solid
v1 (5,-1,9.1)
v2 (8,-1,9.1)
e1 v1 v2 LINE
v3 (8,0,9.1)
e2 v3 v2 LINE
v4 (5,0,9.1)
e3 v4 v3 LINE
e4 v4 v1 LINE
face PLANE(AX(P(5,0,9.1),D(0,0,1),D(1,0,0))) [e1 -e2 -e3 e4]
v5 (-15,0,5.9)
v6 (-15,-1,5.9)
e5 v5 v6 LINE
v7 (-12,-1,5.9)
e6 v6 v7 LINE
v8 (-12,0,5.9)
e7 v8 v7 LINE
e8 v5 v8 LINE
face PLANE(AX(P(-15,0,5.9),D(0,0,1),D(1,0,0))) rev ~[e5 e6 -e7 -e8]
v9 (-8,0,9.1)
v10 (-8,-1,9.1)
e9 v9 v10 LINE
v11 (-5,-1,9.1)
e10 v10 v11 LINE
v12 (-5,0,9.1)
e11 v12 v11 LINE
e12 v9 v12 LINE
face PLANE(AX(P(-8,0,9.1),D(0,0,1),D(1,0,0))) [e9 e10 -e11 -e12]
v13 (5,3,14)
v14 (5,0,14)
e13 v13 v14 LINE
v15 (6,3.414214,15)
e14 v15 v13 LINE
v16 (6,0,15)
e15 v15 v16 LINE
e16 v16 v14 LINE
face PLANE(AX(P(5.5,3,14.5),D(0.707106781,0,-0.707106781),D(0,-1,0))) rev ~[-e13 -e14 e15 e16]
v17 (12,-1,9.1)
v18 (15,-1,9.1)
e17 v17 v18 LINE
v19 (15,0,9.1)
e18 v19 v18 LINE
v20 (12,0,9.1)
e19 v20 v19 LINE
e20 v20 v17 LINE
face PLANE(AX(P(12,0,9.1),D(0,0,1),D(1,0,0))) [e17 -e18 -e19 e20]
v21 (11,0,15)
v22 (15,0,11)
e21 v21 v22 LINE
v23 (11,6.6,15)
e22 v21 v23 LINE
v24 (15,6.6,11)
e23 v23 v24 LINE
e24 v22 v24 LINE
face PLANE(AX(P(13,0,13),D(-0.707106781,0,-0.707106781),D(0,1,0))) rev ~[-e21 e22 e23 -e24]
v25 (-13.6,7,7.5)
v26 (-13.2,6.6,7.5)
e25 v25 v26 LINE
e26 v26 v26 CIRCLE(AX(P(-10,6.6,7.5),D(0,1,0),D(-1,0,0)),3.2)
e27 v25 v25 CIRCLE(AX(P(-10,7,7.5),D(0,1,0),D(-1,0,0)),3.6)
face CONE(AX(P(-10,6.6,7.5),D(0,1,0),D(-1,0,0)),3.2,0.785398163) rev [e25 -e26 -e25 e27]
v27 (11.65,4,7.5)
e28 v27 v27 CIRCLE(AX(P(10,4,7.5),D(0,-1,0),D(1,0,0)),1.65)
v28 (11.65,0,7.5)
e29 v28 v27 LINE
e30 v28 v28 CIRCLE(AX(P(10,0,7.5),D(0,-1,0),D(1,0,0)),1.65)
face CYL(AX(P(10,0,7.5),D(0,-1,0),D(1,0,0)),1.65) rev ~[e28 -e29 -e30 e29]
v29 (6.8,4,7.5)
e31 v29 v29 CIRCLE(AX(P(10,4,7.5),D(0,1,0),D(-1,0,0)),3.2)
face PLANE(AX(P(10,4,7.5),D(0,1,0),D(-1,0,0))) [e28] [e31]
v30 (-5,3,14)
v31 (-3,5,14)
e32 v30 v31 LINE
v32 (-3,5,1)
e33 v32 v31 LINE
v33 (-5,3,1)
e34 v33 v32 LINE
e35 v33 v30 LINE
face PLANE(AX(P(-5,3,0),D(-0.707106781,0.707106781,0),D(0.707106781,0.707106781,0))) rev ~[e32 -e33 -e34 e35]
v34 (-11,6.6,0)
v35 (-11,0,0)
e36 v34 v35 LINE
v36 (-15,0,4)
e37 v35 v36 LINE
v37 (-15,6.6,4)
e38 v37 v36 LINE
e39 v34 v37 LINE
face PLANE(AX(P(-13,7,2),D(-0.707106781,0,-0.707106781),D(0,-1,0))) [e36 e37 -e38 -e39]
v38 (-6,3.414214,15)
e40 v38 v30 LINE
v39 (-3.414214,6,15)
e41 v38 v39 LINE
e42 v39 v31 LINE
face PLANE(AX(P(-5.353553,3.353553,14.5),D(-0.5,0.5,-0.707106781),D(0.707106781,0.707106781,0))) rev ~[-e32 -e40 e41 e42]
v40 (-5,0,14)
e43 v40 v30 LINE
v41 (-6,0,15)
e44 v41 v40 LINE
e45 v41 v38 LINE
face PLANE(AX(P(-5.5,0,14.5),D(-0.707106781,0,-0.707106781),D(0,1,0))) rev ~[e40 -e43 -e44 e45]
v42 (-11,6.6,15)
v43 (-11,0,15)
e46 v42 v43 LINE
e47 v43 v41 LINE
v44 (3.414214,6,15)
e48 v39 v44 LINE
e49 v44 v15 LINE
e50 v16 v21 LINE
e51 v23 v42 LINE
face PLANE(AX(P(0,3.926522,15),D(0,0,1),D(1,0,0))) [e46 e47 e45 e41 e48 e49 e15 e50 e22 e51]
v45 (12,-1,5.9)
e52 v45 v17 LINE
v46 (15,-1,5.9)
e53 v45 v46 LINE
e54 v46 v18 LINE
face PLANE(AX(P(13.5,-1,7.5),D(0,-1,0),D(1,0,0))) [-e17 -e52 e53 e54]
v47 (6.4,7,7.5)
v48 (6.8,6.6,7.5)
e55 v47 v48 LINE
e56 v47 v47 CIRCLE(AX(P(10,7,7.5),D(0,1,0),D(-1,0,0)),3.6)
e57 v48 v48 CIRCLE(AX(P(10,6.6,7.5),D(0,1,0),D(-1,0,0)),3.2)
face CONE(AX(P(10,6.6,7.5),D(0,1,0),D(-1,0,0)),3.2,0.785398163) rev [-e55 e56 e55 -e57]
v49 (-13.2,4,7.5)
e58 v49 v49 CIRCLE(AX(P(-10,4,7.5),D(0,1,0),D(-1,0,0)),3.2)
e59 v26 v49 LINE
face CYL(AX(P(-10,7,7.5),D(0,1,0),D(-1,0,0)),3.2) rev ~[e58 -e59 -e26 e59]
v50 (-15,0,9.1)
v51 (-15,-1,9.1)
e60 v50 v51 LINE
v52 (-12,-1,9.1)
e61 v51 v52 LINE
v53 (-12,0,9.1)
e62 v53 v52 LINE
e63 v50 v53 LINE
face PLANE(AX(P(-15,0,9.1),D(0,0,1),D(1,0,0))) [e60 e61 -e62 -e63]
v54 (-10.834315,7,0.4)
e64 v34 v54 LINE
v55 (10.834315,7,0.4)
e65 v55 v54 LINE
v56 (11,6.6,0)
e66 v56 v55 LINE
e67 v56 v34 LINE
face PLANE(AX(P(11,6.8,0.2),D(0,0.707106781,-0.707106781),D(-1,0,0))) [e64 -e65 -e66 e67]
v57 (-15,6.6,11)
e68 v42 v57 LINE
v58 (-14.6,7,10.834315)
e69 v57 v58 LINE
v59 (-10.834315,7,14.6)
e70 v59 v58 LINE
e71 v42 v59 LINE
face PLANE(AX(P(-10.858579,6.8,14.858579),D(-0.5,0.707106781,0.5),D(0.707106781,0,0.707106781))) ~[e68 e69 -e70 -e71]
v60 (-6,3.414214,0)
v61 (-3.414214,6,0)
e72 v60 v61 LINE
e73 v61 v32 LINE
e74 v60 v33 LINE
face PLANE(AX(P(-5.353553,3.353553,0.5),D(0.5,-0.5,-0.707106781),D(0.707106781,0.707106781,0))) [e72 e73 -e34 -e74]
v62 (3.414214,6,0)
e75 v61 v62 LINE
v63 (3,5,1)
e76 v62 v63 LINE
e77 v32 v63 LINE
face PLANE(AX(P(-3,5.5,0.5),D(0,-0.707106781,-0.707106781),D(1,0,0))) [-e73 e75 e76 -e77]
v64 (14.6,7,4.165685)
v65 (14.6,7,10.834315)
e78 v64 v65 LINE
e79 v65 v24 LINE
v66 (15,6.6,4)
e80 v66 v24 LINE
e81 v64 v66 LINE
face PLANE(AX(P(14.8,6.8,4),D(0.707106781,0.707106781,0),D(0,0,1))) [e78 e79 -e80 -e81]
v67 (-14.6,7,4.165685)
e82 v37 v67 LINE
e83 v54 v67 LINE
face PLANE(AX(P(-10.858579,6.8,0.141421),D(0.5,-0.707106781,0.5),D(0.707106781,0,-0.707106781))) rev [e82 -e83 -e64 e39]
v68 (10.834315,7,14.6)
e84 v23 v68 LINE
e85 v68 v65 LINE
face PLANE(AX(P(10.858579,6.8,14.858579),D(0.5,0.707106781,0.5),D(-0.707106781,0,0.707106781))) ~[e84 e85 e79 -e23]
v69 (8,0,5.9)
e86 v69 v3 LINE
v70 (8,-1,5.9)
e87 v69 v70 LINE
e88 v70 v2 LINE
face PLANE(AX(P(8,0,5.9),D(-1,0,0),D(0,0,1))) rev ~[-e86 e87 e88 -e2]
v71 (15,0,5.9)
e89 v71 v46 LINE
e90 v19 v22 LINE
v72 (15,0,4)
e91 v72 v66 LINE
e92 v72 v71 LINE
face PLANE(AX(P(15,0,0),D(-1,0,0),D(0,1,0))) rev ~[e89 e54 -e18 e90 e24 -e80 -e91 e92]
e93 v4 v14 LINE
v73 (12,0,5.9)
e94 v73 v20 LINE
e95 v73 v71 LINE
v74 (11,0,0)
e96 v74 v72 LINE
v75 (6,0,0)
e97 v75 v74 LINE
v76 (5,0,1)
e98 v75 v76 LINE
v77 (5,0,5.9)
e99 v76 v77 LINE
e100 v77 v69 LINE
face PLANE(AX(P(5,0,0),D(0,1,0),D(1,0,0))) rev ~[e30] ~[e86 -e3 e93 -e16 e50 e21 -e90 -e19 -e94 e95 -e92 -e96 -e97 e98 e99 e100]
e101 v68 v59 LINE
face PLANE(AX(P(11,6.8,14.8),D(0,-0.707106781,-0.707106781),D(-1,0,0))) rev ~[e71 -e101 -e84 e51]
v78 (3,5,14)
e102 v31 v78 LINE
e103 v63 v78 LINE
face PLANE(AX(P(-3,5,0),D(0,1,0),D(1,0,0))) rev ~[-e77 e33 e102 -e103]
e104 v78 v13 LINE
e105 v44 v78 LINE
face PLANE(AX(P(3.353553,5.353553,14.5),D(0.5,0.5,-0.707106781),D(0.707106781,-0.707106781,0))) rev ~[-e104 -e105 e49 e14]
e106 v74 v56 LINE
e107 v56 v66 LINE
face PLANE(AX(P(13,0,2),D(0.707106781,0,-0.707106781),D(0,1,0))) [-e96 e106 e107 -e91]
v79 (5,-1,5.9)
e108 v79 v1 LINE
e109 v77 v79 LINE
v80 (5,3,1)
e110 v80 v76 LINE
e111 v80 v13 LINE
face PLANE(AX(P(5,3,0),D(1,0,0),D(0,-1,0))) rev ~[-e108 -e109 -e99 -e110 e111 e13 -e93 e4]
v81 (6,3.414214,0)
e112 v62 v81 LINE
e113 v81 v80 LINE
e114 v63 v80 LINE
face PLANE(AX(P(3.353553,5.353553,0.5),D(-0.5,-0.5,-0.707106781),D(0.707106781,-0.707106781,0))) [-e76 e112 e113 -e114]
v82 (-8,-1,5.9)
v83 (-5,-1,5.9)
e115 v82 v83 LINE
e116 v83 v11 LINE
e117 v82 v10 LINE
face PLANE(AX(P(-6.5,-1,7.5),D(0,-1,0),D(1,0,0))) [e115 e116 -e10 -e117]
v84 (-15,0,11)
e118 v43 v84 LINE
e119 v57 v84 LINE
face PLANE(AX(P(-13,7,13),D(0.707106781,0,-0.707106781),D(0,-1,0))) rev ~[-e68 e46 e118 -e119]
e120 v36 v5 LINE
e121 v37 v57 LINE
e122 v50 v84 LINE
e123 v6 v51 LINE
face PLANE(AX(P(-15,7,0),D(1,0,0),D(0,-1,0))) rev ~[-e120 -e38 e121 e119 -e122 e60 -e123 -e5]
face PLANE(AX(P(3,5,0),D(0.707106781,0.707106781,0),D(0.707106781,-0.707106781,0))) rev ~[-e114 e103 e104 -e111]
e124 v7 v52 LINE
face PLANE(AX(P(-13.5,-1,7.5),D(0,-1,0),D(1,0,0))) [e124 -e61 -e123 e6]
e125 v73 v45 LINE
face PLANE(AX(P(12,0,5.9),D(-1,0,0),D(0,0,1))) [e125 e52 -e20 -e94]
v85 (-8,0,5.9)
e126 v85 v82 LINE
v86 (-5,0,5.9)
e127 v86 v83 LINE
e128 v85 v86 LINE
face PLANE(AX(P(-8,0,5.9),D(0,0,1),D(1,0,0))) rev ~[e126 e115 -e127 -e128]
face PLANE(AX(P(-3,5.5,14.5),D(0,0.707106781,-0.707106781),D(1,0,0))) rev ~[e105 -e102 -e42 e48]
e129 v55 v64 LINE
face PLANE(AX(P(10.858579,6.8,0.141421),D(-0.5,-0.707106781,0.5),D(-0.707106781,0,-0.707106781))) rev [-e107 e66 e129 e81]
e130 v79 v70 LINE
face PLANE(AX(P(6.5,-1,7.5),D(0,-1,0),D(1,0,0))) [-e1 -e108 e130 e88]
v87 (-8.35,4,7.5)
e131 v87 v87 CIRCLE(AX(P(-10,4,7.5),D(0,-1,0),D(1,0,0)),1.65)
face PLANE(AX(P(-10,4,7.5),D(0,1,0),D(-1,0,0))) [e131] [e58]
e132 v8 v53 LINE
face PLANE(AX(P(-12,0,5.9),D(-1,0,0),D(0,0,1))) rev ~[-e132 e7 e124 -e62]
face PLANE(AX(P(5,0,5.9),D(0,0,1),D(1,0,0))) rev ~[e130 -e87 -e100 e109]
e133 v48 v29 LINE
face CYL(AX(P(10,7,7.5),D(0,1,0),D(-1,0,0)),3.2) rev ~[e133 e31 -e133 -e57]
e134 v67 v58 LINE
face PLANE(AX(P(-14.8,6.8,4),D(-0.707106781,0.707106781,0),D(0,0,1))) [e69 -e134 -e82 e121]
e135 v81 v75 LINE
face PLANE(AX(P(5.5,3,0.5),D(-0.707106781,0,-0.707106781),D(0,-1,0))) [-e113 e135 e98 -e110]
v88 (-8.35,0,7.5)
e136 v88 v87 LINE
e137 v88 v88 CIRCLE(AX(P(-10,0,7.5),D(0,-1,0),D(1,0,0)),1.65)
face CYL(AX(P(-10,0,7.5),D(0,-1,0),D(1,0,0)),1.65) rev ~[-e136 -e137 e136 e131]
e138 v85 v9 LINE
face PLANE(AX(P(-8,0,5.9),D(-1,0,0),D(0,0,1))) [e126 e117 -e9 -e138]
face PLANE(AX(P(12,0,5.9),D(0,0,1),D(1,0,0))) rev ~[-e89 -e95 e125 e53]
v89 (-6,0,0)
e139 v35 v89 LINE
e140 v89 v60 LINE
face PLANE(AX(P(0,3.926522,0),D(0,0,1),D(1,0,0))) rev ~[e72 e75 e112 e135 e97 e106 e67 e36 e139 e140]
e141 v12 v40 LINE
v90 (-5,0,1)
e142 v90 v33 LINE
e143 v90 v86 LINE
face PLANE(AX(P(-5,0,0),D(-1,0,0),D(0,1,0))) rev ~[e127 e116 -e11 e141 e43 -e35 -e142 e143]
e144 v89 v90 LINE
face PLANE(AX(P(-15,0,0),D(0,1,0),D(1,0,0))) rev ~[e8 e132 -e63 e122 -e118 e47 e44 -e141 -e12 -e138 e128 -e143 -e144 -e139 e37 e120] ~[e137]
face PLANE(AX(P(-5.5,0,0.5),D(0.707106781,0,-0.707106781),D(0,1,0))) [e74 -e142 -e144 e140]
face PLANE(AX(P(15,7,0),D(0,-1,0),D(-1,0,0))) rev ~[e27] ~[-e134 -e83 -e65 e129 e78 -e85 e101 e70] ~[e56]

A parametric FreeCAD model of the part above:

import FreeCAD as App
import Part
import Sketcher
from FreeCAD import Vector


def edges_at(feature, points):
    """Names of the edges that pass closest to the given points."""
    edges = feature.Shape.Edges
    near = lambda p: min(range(len(edges)), key=lambda i: edges[i].distToShape(Part.Vertex(*p))[0])
    return sorted({f"Edge{near(p) + 1}" for p in points})


def add_polygon(sketch, points):
    """Adds a closed chain of lines whose ends are joined by coincident constraints."""
    first, n = sketch.GeometryCount, len(points)
    for a, b in zip(points, points[1:] + points[:1]):
        sketch.addGeometry(Part.LineSegment(App.Vector(*a, 0), App.Vector(*b, 0)), False)
    for i in range(n):
        sketch.addConstraint(Sketcher.Constraint("Coincident", first + i, 2, first + (i + 1) % n, 1))

doc = App.newDocument("Part")
params = doc.addObject("Spreadsheet::Sheet", "Params")
for row, (alias, value) in enumerate([
    ("sketch1_width", "6 mm"),
    ("sketch1_width2", "10 mm"),
    ("sketch1_width3", "30 mm"),
    ("sketch1_height", "3 mm"),
    ("sketch1_height2", "7 mm"),
    ("pad1_length", "15 mm"),
    ("sketch2_diameter", "3.3 mm"),
    ("sketch3_diameter", "6.4 mm"),
    ("pocket2_length", "3 mm"),
    ("chamfer_size", "4 mm"),
    ("chamfer2_size", "0.4 mm"),
    ("chamfer3_size", "1 mm"),
    ("sketch4_width", "3 mm"),
    ("sketch4_height", "3.2 mm"),
    ("pad2_length", "1 mm"),
], start=1):
    params.set(f"A{row}", alias)
    params.set(f"B{row}", "=" + value)
    params.setAlias(f"B{row}", alias)

body = doc.addObject("PartDesign::Body", "Body")

sketch1 = doc.addObject("Sketcher::SketchObject", "Sketch")
body.addObject(sketch1)
sketch1.AttachmentSupport = (doc.XY_Plane, [""])
sketch1.MapMode = "FlatFace"
add_polygon(sketch1, [(-5, 0), (-5, 3), (-3, 5), (3, 5), (5, 3), (5, 0), (15, 0), (15, 7), (-15, 7), (-15, 0)])
sketch1.addConstraint([
    Sketcher.Constraint("Vertical", 0),
    Sketcher.Constraint("Horizontal", 2),
    Sketcher.Constraint("Vertical", 4),
    Sketcher.Constraint("Horizontal", 5),
    Sketcher.Constraint("Vertical", 6),
    Sketcher.Constraint("Horizontal", 7),
    Sketcher.Constraint("Vertical", 8),
    Sketcher.Constraint("Horizontal", 9),
    Sketcher.Constraint("Symmetric", 5, 2, 8, 2, -1, 1),
    Sketcher.Constraint("Symmetric", 0, 2, 3, 2, -2),
    Sketcher.Constraint("PointOnObject", 4, 2, -1),
    Sketcher.Constraint("Perpendicular", 1, 3),
    Sketcher.Constraint("Equal", 1, 3),
    Sketcher.Constraint("DistanceX", 2, 1, 2, 2, 6.0),
    Sketcher.Constraint("DistanceX", 5, 1, 5, 2, 10.0),
    Sketcher.Constraint("DistanceX", 7, 2, 7, 1, 30.0),
    Sketcher.Constraint("DistanceY", 0, 1, 0, 2, 3.0),
    Sketcher.Constraint("DistanceY", 6, 1, 6, 2, 7.0),
])
sketch1.setExpression("Constraints[23]", "Params.sketch1_width")
sketch1.setExpression("Constraints[24]", "Params.sketch1_width2")
sketch1.setExpression("Constraints[25]", "Params.sketch1_width3")
sketch1.setExpression("Constraints[26]", "Params.sketch1_height")
sketch1.setExpression("Constraints[27]", "Params.sketch1_height2")
pad1 = doc.addObject("PartDesign::Pad", "Pad")
body.addObject(pad1)
pad1.Profile = sketch1
pad1.setExpression("Length", "Params.pad1_length")

sketch2 = doc.addObject("Sketcher::SketchObject", "Sketch001")
body.addObject(sketch2)
sketch2.AttachmentSupport = (doc.XZ_Plane, [""])
sketch2.MapMode = "FlatFace"
sketch2.addGeometry([
    Part.Circle(Vector(-10, 7.5, 0), Vector(0, 0, 1), 1.6),
    Part.Circle(Vector(10, 7.5, 0), Vector(0, 0, 1), 1.6),
], False)
sketch2.addConstraint([
    Sketcher.Constraint("Equal", 0, 1),
    Sketcher.Constraint("Symmetric", 0, 3, 1, 3, -2),
    Sketcher.Constraint("Diameter", 0, 3.3),
    Sketcher.Constraint("DistanceX", 0, 3, -1, 1, 10.0),
    Sketcher.Constraint("DistanceY", -1, 1, 0, 3, 7.5),
])
sketch2.setExpression("Constraints[2]", "Params.sketch2_diameter")
pocket1 = doc.addObject("PartDesign::Pocket", "Pocket")
body.addObject(pocket1)
pocket1.Profile = sketch2
pocket1.Type = "ThroughAll"

sketch3 = doc.addObject("Sketcher::SketchObject", "Sketch002")
body.addObject(sketch3)
sketch3.AttachmentSupport = (doc.XZ_Plane, [""])
sketch3.MapMode = "FlatFace"
sketch3.AttachmentOffset = App.Placement(Vector(0, 0, -7), App.Rotation())
sketch3.addGeometry([
    Part.Circle(Vector(10, 7.5, 0), Vector(0, 0, 1), 3.2),
    Part.Circle(Vector(-10, 7.5, 0), Vector(0, 0, 1), 3.2),
], False)
sketch3.addConstraint([
    Sketcher.Constraint("Equal", 0, 1),
    Sketcher.Constraint("Symmetric", 0, 3, 1, 3, -2),
    Sketcher.Constraint("Diameter", 0, 6.4),
    Sketcher.Constraint("DistanceX", -1, 1, 0, 3, 10.0),
    Sketcher.Constraint("DistanceY", -1, 1, 0, 3, 7.5),
])
sketch3.setExpression("Constraints[2]", "Params.sketch3_diameter")
pocket2 = doc.addObject("PartDesign::Pocket", "Pocket001")
body.addObject(pocket2)
pocket2.Profile = sketch3
pocket2.setExpression("Length", "Params.pocket2_length")
pocket2.Reversed = True
doc.recompute()

chamfer = doc.addObject("PartDesign::Chamfer", "Chamfer")
body.addObject(chamfer)
chamfer.Base = (pocket2, edges_at(pocket2, [
    (15, 3.5, 15),
    (15, 3.5, 0),
    (15, 3.5, 0),
    (15, 3.5, 15),
    (-15, 3.5, 15),
    (-15, 3.5, 15),
    (-15, 3.5, 0),
    (-15, 3.5, 0),
]))
chamfer.setExpression("Size", "Params.chamfer_size")
doc.recompute()

chamfer2 = doc.addObject("PartDesign::Chamfer", "Chamfer001")
body.addObject(chamfer2)
chamfer2.Base = (chamfer, edges_at(chamfer, [
    (-15, 7, 7.5),
    (-13, 7, 2),
    (-13, 7, 13),
    (0, 7, 0),
    (0, 7, 15),
    (13, 7, 2),
    (13, 7, 13),
    (15, 7, 7.5),
    (-6.8, 7, 7.5),
    (13.2, 7, 7.5),
]))
chamfer2.setExpression("Size", "Params.chamfer2_size")
doc.recompute()

chamfer3 = doc.addObject("PartDesign::Chamfer", "Chamfer002")
body.addObject(chamfer3)
chamfer3.Base = (chamfer2, edges_at(chamfer2, [
    (-5, 1.5, 15),
    (-4, 4, 15),
    (0, 5, 15),
    (4, 4, 15),
    (5, 1.5, 15),
    (-5, 1.5, 0),
    (-4, 4, 0),
    (0, 5, 0),
    (4, 4, 0),
    (5, 1.5, 0),
]))
chamfer3.setExpression("Size", "Params.chamfer3_size")

sketch4 = doc.addObject("Sketcher::SketchObject", "Sketch003")
body.addObject(sketch4)
sketch4.AttachmentSupport = (doc.XZ_Plane, [""])
sketch4.MapMode = "FlatFace"
add_polygon(sketch4, [(-15, 9.1), (-15, 5.9), (-12, 5.9), (-12, 9.1)])
add_polygon(sketch4, [(-8, 9.1), (-8, 5.9), (-5, 5.9), (-5, 9.1)])
add_polygon(sketch4, [(5, 9.1), (5, 5.9), (8, 5.9), (8, 9.1)])
add_polygon(sketch4, [(12, 9.1), (12, 5.9), (15, 5.9), (15, 9.1)])
sketch4.addConstraint([
    Sketcher.Constraint("Vertical", 0),
    Sketcher.Constraint("Horizontal", 1),
    Sketcher.Constraint("Vertical", 2),
    Sketcher.Constraint("Horizontal", 3),
    Sketcher.Constraint("Vertical", 4),
    Sketcher.Constraint("Horizontal", 5),
    Sketcher.Constraint("Vertical", 6),
    Sketcher.Constraint("Horizontal", 7),
    Sketcher.Constraint("Vertical", 8),
    Sketcher.Constraint("Horizontal", 9),
    Sketcher.Constraint("Vertical", 10),
    Sketcher.Constraint("Horizontal", 11),
    Sketcher.Constraint("Vertical", 12),
    Sketcher.Constraint("Horizontal", 13),
    Sketcher.Constraint("Vertical", 14),
    Sketcher.Constraint("Horizontal", 15),
    Sketcher.Constraint("Symmetric", 5, 2, 8, 2, -2),
    Sketcher.Constraint("Symmetric", 7, 2, 10, 2, -2),
    Sketcher.Constraint("Symmetric", 1, 2, 12, 2, -2),
    Sketcher.Constraint("Symmetric", 3, 2, 14, 2, -2),
    Sketcher.Constraint("Horizontal", 1, 2, 4, 2),
    Sketcher.Constraint("Horizontal", 3, 2, 6, 2),
    Sketcher.Constraint("Equal", 3, 5),
    Sketcher.Constraint("DistanceX", 1, 1, 1, 2, 3.0),
    Sketcher.Constraint("DistanceY", 0, 2, 0, 1, 3.2),
    Sketcher.Constraint("DistanceX", 0, 2, -1, 1, 15.0),
    Sketcher.Constraint("DistanceX", 4, 2, -1, 1, 8.0),
    Sketcher.Constraint("DistanceY", -1, 1, 0, 2, 5.9),
])
sketch4.setExpression("Constraints[39]", "Params.sketch4_width")
sketch4.setExpression("Constraints[40]", "Params.sketch4_height")
pad2 = doc.addObject("PartDesign::Pad", "Pad001")
body.addObject(pad2)
pad2.Profile = sketch4
pad2.setExpression("Length", "Params.pad2_length")

doc.recompute()
